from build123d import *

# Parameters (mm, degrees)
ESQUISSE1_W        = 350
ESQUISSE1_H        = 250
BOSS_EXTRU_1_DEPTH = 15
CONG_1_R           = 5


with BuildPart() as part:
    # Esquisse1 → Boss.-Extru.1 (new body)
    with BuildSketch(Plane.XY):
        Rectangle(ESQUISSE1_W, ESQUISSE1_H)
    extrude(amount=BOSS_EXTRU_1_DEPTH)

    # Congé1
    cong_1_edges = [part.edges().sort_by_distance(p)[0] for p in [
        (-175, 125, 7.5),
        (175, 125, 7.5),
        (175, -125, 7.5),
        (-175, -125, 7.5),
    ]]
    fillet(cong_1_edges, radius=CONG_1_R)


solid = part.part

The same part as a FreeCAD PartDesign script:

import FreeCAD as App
import Part
import Sketcher


def edges_at(feature, points):
    """Names of the edges that pass closest to the given points."""
    edges = feature.Shape.Edges
    near = lambda p: min(range(len(edges)), key=lambda i: edges[i].distToShape(Part.Vertex(*p))[0])
    return sorted({f"Edge{near(p) + 1}" for p in points})


def add_polygon(sketch, points):
    """Adds a closed chain of lines whose ends are joined by coincident constraints."""
    first, n = sketch.GeometryCount, len(points)
    for a, b in zip(points, points[1:] + points[:1]):
        sketch.addGeometry(Part.LineSegment(App.Vector(*a, 0), App.Vector(*b, 0)), False)
    for i in range(n):
        sketch.addConstraint(Sketcher.Constraint("Coincident", first + i, 2, first + (i + 1) % n, 1))

doc = App.newDocument("Part")
body = doc.addObject("PartDesign::Body", "Body")

sketch1 = doc.addObject("Sketcher::SketchObject", "Sketch")
body.addObject(sketch1)
sketch1.AttachmentSupport = (doc.XY_Plane, [""])
sketch1.MapMode = "FlatFace"
add_polygon(sketch1, [(-175, 125), (-175, -125), (175, -125), (175, 125)])
sketch1.addConstraint(Sketcher.Constraint("Vertical", 0))
sketch1.addConstraint(Sketcher.Constraint("Horizontal", 1))
sketch1.addConstraint(Sketcher.Constraint("Vertical", 2))
sketch1.addConstraint(Sketcher.Constraint("Horizontal", 3))
sketch1.addConstraint(Sketcher.Constraint("Symmetric", 0, 2, 2, 2, -1, 1))
sketch1.addConstraint(Sketcher.Constraint("DistanceX", 1, 1, 1, 2, 350.0))
sketch1.addConstraint(Sketcher.Constraint("DistanceY", 0, 2, 0, 1, 250.0))
pad1 = doc.addObject("PartDesign::Pad", "Pad")
body.addObject(pad1)
pad1.Profile = sketch1
pad1.Length = 15
doc.recompute()

fillet = doc.addObject("PartDesign::Fillet", "Fillet")
body.addObject(fillet)
fillet.Base = (pad1, edges_at(pad1, [
    (-175, 125, 7.5),
    (175, 125, 7.5),
    (175, -125, 7.5),
    (-175, -125, 7.5),
]))
fillet.Radius = 5

doc.recompute()
